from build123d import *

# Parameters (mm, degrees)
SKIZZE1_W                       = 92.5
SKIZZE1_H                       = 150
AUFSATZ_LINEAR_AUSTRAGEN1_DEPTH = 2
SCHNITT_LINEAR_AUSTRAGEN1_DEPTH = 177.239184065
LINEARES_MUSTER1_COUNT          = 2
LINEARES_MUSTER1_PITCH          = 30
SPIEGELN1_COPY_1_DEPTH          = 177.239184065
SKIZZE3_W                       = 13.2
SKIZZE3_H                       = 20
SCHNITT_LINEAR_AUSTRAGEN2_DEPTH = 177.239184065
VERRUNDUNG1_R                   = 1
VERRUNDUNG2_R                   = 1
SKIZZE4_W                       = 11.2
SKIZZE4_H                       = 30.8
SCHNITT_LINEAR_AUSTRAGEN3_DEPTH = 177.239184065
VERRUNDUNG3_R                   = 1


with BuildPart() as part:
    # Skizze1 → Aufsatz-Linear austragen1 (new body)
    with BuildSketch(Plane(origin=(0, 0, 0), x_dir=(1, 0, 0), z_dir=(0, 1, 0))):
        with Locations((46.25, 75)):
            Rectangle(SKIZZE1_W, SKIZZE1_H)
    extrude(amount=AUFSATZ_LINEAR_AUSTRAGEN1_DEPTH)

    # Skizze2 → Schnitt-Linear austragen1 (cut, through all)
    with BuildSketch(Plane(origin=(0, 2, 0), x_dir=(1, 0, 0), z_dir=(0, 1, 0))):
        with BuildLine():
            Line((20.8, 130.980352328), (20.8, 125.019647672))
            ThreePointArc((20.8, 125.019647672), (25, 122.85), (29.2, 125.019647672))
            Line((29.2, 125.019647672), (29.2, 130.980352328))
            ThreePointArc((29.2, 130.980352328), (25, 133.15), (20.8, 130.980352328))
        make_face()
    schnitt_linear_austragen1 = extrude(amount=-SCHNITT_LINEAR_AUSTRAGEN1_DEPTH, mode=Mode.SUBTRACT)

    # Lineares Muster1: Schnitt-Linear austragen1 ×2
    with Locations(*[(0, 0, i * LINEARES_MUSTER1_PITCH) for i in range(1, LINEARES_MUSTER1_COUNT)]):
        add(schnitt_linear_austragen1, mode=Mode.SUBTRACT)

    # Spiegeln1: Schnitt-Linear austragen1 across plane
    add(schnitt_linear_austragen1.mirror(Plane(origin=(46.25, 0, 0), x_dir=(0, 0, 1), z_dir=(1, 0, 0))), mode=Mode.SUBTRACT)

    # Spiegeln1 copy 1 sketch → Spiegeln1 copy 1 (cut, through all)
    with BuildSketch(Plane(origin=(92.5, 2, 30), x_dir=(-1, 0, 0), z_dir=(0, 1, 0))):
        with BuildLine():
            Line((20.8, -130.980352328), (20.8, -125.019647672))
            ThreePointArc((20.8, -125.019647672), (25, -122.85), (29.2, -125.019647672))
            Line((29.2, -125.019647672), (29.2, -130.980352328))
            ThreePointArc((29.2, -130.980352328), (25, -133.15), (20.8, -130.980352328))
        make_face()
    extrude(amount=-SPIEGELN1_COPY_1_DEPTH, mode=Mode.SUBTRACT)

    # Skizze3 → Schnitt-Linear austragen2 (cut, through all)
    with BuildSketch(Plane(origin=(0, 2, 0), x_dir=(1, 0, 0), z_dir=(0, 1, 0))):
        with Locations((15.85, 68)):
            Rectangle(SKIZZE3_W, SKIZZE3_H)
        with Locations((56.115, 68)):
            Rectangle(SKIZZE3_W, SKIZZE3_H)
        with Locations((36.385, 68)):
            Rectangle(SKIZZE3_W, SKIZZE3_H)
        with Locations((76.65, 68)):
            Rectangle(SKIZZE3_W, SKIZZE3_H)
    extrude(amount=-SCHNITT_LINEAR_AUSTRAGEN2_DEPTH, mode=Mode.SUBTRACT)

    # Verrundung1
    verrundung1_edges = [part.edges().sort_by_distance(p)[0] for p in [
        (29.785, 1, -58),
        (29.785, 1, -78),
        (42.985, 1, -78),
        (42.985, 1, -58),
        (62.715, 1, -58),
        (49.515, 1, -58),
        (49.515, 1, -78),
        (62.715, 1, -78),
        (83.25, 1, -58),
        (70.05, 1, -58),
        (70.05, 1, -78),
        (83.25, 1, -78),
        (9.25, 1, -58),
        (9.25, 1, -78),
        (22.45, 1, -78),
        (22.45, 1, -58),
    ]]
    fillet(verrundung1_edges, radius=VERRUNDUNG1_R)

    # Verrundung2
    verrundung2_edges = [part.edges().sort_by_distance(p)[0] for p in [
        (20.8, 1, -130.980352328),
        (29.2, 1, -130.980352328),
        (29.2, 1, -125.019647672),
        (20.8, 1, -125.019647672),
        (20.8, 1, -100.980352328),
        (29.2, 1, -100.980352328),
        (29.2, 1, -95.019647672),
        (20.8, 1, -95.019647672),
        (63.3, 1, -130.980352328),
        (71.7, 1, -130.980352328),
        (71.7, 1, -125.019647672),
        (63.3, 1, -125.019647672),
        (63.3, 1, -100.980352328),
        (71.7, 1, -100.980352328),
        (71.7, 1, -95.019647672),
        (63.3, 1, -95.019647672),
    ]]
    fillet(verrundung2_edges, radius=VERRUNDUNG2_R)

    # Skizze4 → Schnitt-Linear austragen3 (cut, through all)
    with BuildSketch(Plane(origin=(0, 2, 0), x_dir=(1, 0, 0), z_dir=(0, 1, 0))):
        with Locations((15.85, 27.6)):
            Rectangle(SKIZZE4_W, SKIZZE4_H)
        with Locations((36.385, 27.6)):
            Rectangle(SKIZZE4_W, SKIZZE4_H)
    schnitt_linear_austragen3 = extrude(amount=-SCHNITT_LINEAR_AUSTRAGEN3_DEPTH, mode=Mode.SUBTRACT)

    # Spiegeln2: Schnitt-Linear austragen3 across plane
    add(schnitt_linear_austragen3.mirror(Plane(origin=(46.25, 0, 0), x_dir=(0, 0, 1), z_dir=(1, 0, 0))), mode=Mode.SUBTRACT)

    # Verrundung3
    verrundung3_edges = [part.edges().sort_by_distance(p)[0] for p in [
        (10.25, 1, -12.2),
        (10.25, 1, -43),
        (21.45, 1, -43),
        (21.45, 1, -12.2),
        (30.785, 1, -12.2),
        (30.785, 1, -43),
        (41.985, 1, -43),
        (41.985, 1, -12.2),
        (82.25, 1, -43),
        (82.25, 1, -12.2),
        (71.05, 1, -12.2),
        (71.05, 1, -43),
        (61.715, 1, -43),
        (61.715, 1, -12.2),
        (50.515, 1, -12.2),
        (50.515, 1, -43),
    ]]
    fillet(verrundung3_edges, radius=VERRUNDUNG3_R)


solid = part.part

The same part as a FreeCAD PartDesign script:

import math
import FreeCAD as App
import Part
import Sketcher
from FreeCAD import Vector
Q = App.Units.Quantity


def edges_at(feature, points):
    """Names of the edges that pass closest to the given points."""
    edges = feature.Shape.Edges
    near = lambda p: min(range(len(edges)), key=lambda i: edges[i].distToShape(Part.Vertex(*p))[0])
    return sorted({f"Edge{near(p) + 1}" for p in points})


def add_polygon(sketch, points):
    """Adds a closed chain of lines whose ends are joined by coincident constraints."""
    first, n = sketch.GeometryCount, len(points)
    for a, b in zip(points, points[1:] + points[:1]):
        sketch.addGeometry(Part.LineSegment(App.Vector(*a, 0), App.Vector(*b, 0)), False)
    for i in range(n):
        sketch.addConstraint(Sketcher.Constraint("Coincident", first + i, 2, first + (i + 1) % n, 1))

doc = App.newDocument("Part")
body = doc.addObject("PartDesign::Body", "Body")

# Sketch on XZ plane
sketch1 = body.newObject("Sketcher::SketchObject", "Sketch")
sketch1.AttachmentSupport = (doc.getObject("XZ_Plane"), [""])
sketch1.MapMode = "FlatFace"
add_polygon(sketch1, [(0, -150), (0, 0), (92, 0), (92, -150)])  # lines 0-3
sketch1.addConstraint(Sketcher.Constraint("Vertical", 0))
sketch1.addConstraint(Sketcher.Constraint("Horizontal", 1))
sketch1.addConstraint(Sketcher.Constraint("Vertical", 2))
sketch1.addConstraint(Sketcher.Constraint("Horizontal", 3))
sketch1.addConstraint(Sketcher.Constraint("Coincident", 0, 2, -1, 1))
sketch1.addConstraint(Sketcher.Constraint("DistanceY", 0, 1, 0, 2, Q("150 mm")))
sketch1.addConstraint(Sketcher.Constraint("DistanceX", 1, 1, 1, 2, Q("92.5 mm")))
pad1 = body.newObject("PartDesign::Pad", "Pad")
pad1.Profile = sketch1
pad1.Length = 2
pad1.Reversed = True

# Sketch on XZ plane
sketch2 = body.newObject("Sketcher::SketchObject", "Sketch001")
sketch2.AttachmentSupport = (doc.getObject("XZ_Plane"), [""])
sketch2.MapMode = "FlatFace"
sketch2.AttachmentOffset = App.Placement(Vector(0, 0, -2), App.Rotation())
sketch2.addGeometry(Part.LineSegment(Vector(21, -131, 0), Vector(21, -125, 0)), False)
sketch2.addGeometry(Part.ArcOfCircle(Part.Circle(Vector(25, -128, 0), Vector(0, 0, 1), 5), math.radians(35), math.radians(145)), False)
sketch2.addGeometry(Part.LineSegment(Vector(29, -125, 0), Vector(29, -131, 0)), False)
sketch2.addGeometry(Part.ArcOfCircle(Part.Circle(Vector(25, -128, 0), Vector(0, 0, 1), 5), math.radians(-145), math.radians(-35)), False)
sketch2.addConstraint(Sketcher.Constraint("Coincident", 0, 2, 1, 2))
sketch2.addConstraint(Sketcher.Constraint("Coincident", 1, 1, 2, 1))
sketch2.addConstraint(Sketcher.Constraint("Coincident", 2, 2, 3, 2))
sketch2.addConstraint(Sketcher.Constraint("Coincident", 3, 1, 0, 1))
sketch2.addConstraint(Sketcher.Constraint("Vertical", 0))
sketch2.addConstraint(Sketcher.Constraint("Vertical", 2))
sketch2.addConstraint(Sketcher.Constraint("Coincident", 3, 3, 1, 3))
sketch2.addConstraint(Sketcher.Constraint("Equal", 1, 3))
sketch2.addConstraint(Sketcher.Constraint("Horizontal", 0, 2, 1, 1))
sketch2.addConstraint(Sketcher.Constraint("Radius", 1, Q("5.15 mm")))
sketch2.addConstraint(Sketcher.Constraint("DistanceX", -1, 1, 1, 3, Q("25 mm")))
sketch2.addConstraint(Sketcher.Constraint("DistanceY", 1, 3, -1, 1, Q("128 mm")))
sketch2.addConstraint(Sketcher.Constraint("DistanceX", -1, 1, 0, 2, Q("20.8 mm")))
pocket1 = body.newObject("PartDesign::Pocket", "Pocket")
pocket1.Profile = sketch2
pocket1.Type = "ThroughAll"
pocket1.Reversed = True
doc.recompute()

linearpattern = body.newObject("PartDesign::LinearPattern", "LinearPattern")
linearpattern.Originals = [pocket1]
linearpattern.Direction = (doc.getObject("Z_Axis"), [""])
linearpattern.Mode = "offset"
linearpattern.Offset = 30
linearpattern.Occurrences = 2
body.Tip = linearpattern
doc.recompute()

datumplane = body.newObject("PartDesign::Plane", "DatumPlane")
datumplane.AttachmentSupport = (doc.getObject("YZ_Plane"), [""])
datumplane.MapMode = "FlatFace"
datumplane.AttachmentOffset = App.Placement(Vector(0, 0, 46.25), App.Rotation())
mirrored = body.newObject("PartDesign::Mirrored", "Mirrored")
mirrored.Originals = [pocket1]
mirrored.MirrorPlane = (datumplane, [""])
body.Tip = mirrored

# Sketch on XZ plane
sketch3 = body.newObject("Sketcher::SketchObject", "Sketch002")
sketch3.AttachmentSupport = (doc.getObject("XZ_Plane"), [""])
sketch3.MapMode = "FlatFace"
sketch3.AttachmentOffset = App.Placement(Vector(0, 0, -2), App.Rotation())
sketch3.addGeometry(Part.LineSegment(Vector(72, -95, 0), Vector(72, -101, 0)), False)
sketch3.addGeometry(Part.ArcOfCircle(Part.Circle(Vector(68, -98, 0), Vector(0, 0, 1), 5), math.radians(-145), math.radians(-35)), False)
sketch3.addGeometry(Part.LineSegment(Vector(63, -101, 0), Vector(63, -95, 0)), False)
sketch3.addGeometry(Part.ArcOfCircle(Part.Circle(Vector(68, -98, 0), Vector(0, 0, 1), 5), math.radians(35), math.radians(145)), False)
sketch3.addConstraint(Sketcher.Constraint("Coincident", 0, 2, 1, 2))
sketch3.addConstraint(Sketcher.Constraint("Coincident", 1, 1, 2, 1))
sketch3.addConstraint(Sketcher.Constraint("Coincident", 2, 2, 3, 2))
sketch3.addConstraint(Sketcher.Constraint("Coincident", 3, 1, 0, 1))
sketch3.addConstraint(Sketcher.Constraint("Vertical", 0))
sketch3.addConstraint(Sketcher.Constraint("Vertical", 2))
sketch3.addConstraint(Sketcher.Constraint("Coincident", 3, 3, 1, 3))
sketch3.addConstraint(Sketcher.Constraint("Equal", 1, 3))
sketch3.addConstraint(Sketcher.Constraint("Horizontal", 0, 2, 1, 1))
sketch3.addConstraint(Sketcher.Constraint("Radius", 1, Q("5.15 mm")))
sketch3.addConstraint(Sketcher.Constraint("DistanceY", 1, 3, -1, 1, Q("98 mm")))
sketch3.addConstraint(Sketcher.Constraint("DistanceX", -1, 1, 1, 3, Q("67.5 mm")))
sketch3.addConstraint(Sketcher.Constraint("DistanceX", -1, 1, 0, 2, Q("71.7 mm")))
pocket2 = body.newObject("PartDesign::Pocket", "Pocket001")
pocket2.Profile = sketch3
pocket2.Type = "ThroughAll"
pocket2.Reversed = True

# Sketch on XZ plane
sketch4 = body.newObject("Sketcher::SketchObject", "Sketch003")
sketch4.AttachmentSupport = (doc.getObject("XZ_Plane"), [""])
sketch4.MapMode = "FlatFace"
sketch4.AttachmentOffset = App.Placement(Vector(0, 0, -2), App.Rotation())
add_polygon(sketch4, [(9, -78), (9, -58), (22, -58), (22, -78)])  # lines 0-3
add_polygon(sketch4, [(50, -78), (50, -58), (63, -58), (63, -78)])  # lines 4-7
add_polygon(sketch4, [(30, -78), (30, -58), (43, -58), (43, -78)])  # lines 8-11
add_polygon(sketch4, [(70, -78), (70, -58), (83, -58), (83, -78)])  # lines 12-15
sketch4.addConstraint(Sketcher.Constraint("Vertical", 0))
sketch4.addConstraint(Sketcher.Constraint("Horizontal", 1))
sketch4.addConstraint(Sketcher.Constraint("Vertical", 2))
sketch4.addConstraint(Sketcher.Constraint("Horizontal", 3))
sketch4.addConstraint(Sketcher.Constraint("Vertical", 4))
sketch4.addConstraint(Sketcher.Constraint("Horizontal", 5))
sketch4.addConstraint(Sketcher.Constraint("Vertical", 6))
sketch4.addConstraint(Sketcher.Constraint("Horizontal", 7))
sketch4.addConstraint(Sketcher.Constraint("Vertical", 8))
sketch4.addConstraint(Sketcher.Constraint("Horizontal", 9))
sketch4.addConstraint(Sketcher.Constraint("Vertical", 10))
sketch4.addConstraint(Sketcher.Constraint("Horizontal", 11))
sketch4.addConstraint(Sketcher.Constraint("Vertical", 12))
sketch4.addConstraint(Sketcher.Constraint("Horizontal", 13))
sketch4.addConstraint(Sketcher.Constraint("Vertical", 14))
sketch4.addConstraint(Sketcher.Constraint("Horizontal", 15))
sketch4.addConstraint(Sketcher.Constraint("Horizontal", 1, 2, 4, 2))
sketch4.addConstraint(Sketcher.Constraint("Horizontal", 3, 2, 6, 2))
sketch4.addConstraint(Sketcher.Constraint("Horizontal", 5, 2, 8, 2))
sketch4.addConstraint(Sketcher.Constraint("Horizontal", 7, 2, 10, 2))
sketch4.addConstraint(Sketcher.Constraint("Horizontal", 9, 2, 12, 2))
sketch4.addConstraint(Sketcher.Constraint("Horizontal", 11, 2, 14, 2))
sketch4.addConstraint(Sketcher.Constraint("Equal", 3, 5))
sketch4.addConstraint(Sketcher.Constraint("Equal", 7, 9))
sketch4.addConstraint(Sketcher.Constraint("Equal", 11, 13))
sketch4.addConstraint(Sketcher.Constraint("DistanceY", 0, 1, 0, 2, Q("20 mm")))
sketch4.addConstraint(Sketcher.Constraint("DistanceX", 1, 1, 1, 2, Q("13.2 mm")))
sketch4.addConstraint(Sketcher.Constraint("DistanceY", 0, 2, -1, 1, Q("58 mm")))
sketch4.addConstraint(Sketcher.Constraint("DistanceX", -1, 1, 0, 2, Q("9.25 mm")))
sketch4.addConstraint(Sketcher.Constraint("DistanceX", -1, 1, 12, 2, Q("70.05 mm")))
sketch4.addConstraint(Sketcher.Constraint("DistanceX", 8, 2, 4, 2, Q("19.73 mm")))
sketch4.addConstraint(Sketcher.Constraint("DistanceX", -1, 1, 4, 2, Q("49.515 mm")))
pocket3 = body.newObject("PartDesign::Pocket", "Pocket002")
pocket3.Profile = sketch4
pocket3.Type = "ThroughAll"
pocket3.Reversed = True
doc.recompute()

fillet = body.newObject("PartDesign::Fillet", "Fillet")
fillet.Base = (pocket3, edges_at(pocket3, [
    (29.785, 1, -58),
    (29.785, 1, -78),
    (42.985, 1, -78),
    (42.985, 1, -58),
    (62.715, 1, -58),
    (49.515, 1, -58),
    (49.515, 1, -78),
    (62.715, 1, -78),
    (83.25, 1, -58),
    (70.05, 1, -58),
    (70.05, 1, -78),
    (83.25, 1, -78),
    (9.25, 1, -58),
    (9.25, 1, -78),
    (22.45, 1, -78),
    (22.45, 1, -58),
]))
fillet.Radius = 1
doc.recompute()

fillet2 = body.newObject("PartDesign::Fillet", "Fillet001")
fillet2.Base = (fillet, edges_at(fillet, [
    (20.8, 1, -130.98),
    (29.2, 1, -130.98),
    (29.2, 1, -125.02),
    (20.8, 1, -125.02),
    (20.8, 1, -100.98),
    (29.2, 1, -100.98),
    (29.2, 1, -95.02),
    (20.8, 1, -95.02),
    (63.3, 1, -130.98),
    (71.7, 1, -130.98),
    (71.7, 1, -125.02),
    (63.3, 1, -125.02),
    (63.3, 1, -100.98),
    (71.7, 1, -100.98),
    (71.7, 1, -95.02),
    (63.3, 1, -95.02),
]))
fillet2.Radius = 1

# Sketch on XZ plane
sketch5 = body.newObject("Sketcher::SketchObject", "Sketch004")
sketch5.AttachmentSupport = (doc.getObject("XZ_Plane"), [""])
sketch5.MapMode = "FlatFace"
sketch5.AttachmentOffset = App.Placement(Vector(0, 0, -2), App.Rotation())
add_polygon(sketch5, [(10, -43), (10, -12), (21, -12), (21, -43)])  # lines 0-3
add_polygon(sketch5, [(31, -43), (31, -12), (42, -12), (42, -43)])  # lines 4-7
sketch5.addConstraint(Sketcher.Constraint("Vertical", 0))
sketch5.addConstraint(Sketcher.Constraint("Horizontal", 1))
sketch5.addConstraint(Sketcher.Constraint("Vertical", 2))
sketch5.addConstraint(Sketcher.Constraint("Horizontal", 3))
sketch5.addConstraint(Sketcher.Constraint("Vertical", 4))
sketch5.addConstraint(Sketcher.Constraint("Horizontal", 5))
sketch5.addConstraint(Sketcher.Constraint("Vertical", 6))
sketch5.addConstraint(Sketcher.Constraint("Horizontal", 7))
sketch5.addConstraint(Sketcher.Constraint("Horizontal", 1, 2, 4, 2))
sketch5.addConstraint(Sketcher.Constraint("Horizontal", 3, 2, 6, 2))
sketch5.addConstraint(Sketcher.Constraint("Equal", 3, 5))
sketch5.addConstraint(Sketcher.Constraint("DistanceX", 1, 1, 1, 2, Q("11.2 mm")))
sketch5.addConstraint(Sketcher.Constraint("DistanceY", 0, 1, 0, 2, Q("30.8 mm")))
sketch5.addConstraint(Sketcher.Constraint("DistanceY", 2, 2, -1, 1, Q("43 mm")))
sketch5.addConstraint(Sketcher.Constraint("DistanceX", -1, 1, 0, 2, Q("10.25 mm")))
sketch5.addConstraint(Sketcher.Constraint("DistanceX", -1, 1, 4, 2, Q("30.785 mm")))
pocket4 = body.newObject("PartDesign::Pocket", "Pocket003")
pocket4.Profile = sketch5
pocket4.Type = "ThroughAll"
pocket4.Reversed = True
doc.recompute()

datumplane2 = body.newObject("PartDesign::Plane", "DatumPlane001")
datumplane2.AttachmentSupport = (doc.getObject("YZ_Plane"), [""])
datumplane2.MapMode = "FlatFace"
datumplane2.AttachmentOffset = App.Placement(Vector(0, 0, 46.25), App.Rotation())
mirrored2 = body.newObject("PartDesign::Mirrored", "Mirrored001")
mirrored2.Originals = [pocket4]
mirrored2.MirrorPlane = (datumplane2, [""])
body.Tip = mirrored2
doc.recompute()

fillet3 = body.newObject("PartDesign::Fillet", "Fillet002")
fillet3.Base = (mirrored2, edges_at(mirrored2, [
    (10.25, 1, -12.2),
    (10.25, 1, -43),
    (21.45, 1, -43),
    (21.45, 1, -12.2),
    (30.785, 1, -12.2),
    (30.785, 1, -43),
    (41.985, 1, -43),
    (41.985, 1, -12.2),
    (82.25, 1, -43),
    (82.25, 1, -12.2),
    (71.05, 1, -12.2),
    (71.05, 1, -43),
    (61.715, 1, -43),
    (61.715, 1, -12.2),
    (50.515, 1, -12.2),
    (50.515, 1, -43),
]))
fillet3.Radius = 1

doc.recompute()
